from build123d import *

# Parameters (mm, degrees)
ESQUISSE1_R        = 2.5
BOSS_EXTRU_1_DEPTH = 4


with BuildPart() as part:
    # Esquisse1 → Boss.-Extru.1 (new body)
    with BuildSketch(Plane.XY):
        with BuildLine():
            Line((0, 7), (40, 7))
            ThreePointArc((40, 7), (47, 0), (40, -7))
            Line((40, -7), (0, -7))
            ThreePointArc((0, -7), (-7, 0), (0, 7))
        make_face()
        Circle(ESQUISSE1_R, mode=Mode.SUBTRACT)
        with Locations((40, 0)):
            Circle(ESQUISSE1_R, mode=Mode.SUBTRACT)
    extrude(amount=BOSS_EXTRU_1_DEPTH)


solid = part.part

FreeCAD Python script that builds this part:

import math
import FreeCAD as App
import Part
import Sketcher

V = App.Vector

doc = App.newDocument("Part")
body = doc.addObject("PartDesign::Body", "Body")

# Sketch on XY plane
sketch1 = body.newObject("Sketcher::SketchObject", "Sketch")
sketch1.AttachmentSupport = (doc.getObject("XY_Plane"), [""])
sketch1.MapMode = "FlatFace"
sketch1.addGeometry(Part.LineSegment(V(40, 7, 0), V(0, 7, 0)), False)
sketch1.addGeometry(Part.ArcOfCircle(Part.Circle(V(0, 0, 0), V(0, 0, 1), 7), math.radians(90), math.radians(270)), False)
sketch1.addGeometry(Part.LineSegment(V(0, -7, 0), V(40, -7, 0)), False)
sketch1.addGeometry(Part.ArcOfCircle(Part.Circle(V(40, 0, 0), V(0, 0, 1), 7), math.radians(-90), math.radians(90)), False)
sketch1.addGeometry(Part.Circle(V(40, 0, 0), V(0, 0, 1), 2.5), False)
sketch1.addGeometry(Part.Circle(V(0, 0, 0), V(0, 0, 1), 2.5), False)
sketch1.addConstraint(Sketcher.Constraint("Tangent", 0, 2, 1, 1))
sketch1.addConstraint(Sketcher.Constraint("Tangent", 1, 2, 2, 1))
sketch1.addConstraint(Sketcher.Constraint("Tangent", 2, 2, 3, 1))
sketch1.addConstraint(Sketcher.Constraint("Tangent", 3, 2, 0, 1))
sketch1.addConstraint(Sketcher.Constraint("Horizontal", 0))
sketch1.addConstraint(Sketcher.Constraint("Horizontal", 2))
sketch1.addConstraint(Sketcher.Constraint("Coincident", 1, 3, -1, 1))
sketch1.addConstraint(Sketcher.Constraint("Coincident", 5, 3, -1, 1))
sketch1.addConstraint(Sketcher.Constraint("Coincident", 4, 3, 3, 3))
sketch1.addConstraint(Sketcher.Constraint("Equal", 4, 5))
sketch1.addConstraint(Sketcher.Constraint("Diameter", 4, 5.0))
sketch1.addConstraint(Sketcher.Constraint("Radius", 1, 7.0))
sketch1.addConstraint(Sketcher.Constraint("DistanceX", 0, 2, 0, 1, 40.0))
pad1 = body.newObject("PartDesign::Pad", "Pad")
pad1.Profile = sketch1
pad1.Length = 4

doc.recompute()
